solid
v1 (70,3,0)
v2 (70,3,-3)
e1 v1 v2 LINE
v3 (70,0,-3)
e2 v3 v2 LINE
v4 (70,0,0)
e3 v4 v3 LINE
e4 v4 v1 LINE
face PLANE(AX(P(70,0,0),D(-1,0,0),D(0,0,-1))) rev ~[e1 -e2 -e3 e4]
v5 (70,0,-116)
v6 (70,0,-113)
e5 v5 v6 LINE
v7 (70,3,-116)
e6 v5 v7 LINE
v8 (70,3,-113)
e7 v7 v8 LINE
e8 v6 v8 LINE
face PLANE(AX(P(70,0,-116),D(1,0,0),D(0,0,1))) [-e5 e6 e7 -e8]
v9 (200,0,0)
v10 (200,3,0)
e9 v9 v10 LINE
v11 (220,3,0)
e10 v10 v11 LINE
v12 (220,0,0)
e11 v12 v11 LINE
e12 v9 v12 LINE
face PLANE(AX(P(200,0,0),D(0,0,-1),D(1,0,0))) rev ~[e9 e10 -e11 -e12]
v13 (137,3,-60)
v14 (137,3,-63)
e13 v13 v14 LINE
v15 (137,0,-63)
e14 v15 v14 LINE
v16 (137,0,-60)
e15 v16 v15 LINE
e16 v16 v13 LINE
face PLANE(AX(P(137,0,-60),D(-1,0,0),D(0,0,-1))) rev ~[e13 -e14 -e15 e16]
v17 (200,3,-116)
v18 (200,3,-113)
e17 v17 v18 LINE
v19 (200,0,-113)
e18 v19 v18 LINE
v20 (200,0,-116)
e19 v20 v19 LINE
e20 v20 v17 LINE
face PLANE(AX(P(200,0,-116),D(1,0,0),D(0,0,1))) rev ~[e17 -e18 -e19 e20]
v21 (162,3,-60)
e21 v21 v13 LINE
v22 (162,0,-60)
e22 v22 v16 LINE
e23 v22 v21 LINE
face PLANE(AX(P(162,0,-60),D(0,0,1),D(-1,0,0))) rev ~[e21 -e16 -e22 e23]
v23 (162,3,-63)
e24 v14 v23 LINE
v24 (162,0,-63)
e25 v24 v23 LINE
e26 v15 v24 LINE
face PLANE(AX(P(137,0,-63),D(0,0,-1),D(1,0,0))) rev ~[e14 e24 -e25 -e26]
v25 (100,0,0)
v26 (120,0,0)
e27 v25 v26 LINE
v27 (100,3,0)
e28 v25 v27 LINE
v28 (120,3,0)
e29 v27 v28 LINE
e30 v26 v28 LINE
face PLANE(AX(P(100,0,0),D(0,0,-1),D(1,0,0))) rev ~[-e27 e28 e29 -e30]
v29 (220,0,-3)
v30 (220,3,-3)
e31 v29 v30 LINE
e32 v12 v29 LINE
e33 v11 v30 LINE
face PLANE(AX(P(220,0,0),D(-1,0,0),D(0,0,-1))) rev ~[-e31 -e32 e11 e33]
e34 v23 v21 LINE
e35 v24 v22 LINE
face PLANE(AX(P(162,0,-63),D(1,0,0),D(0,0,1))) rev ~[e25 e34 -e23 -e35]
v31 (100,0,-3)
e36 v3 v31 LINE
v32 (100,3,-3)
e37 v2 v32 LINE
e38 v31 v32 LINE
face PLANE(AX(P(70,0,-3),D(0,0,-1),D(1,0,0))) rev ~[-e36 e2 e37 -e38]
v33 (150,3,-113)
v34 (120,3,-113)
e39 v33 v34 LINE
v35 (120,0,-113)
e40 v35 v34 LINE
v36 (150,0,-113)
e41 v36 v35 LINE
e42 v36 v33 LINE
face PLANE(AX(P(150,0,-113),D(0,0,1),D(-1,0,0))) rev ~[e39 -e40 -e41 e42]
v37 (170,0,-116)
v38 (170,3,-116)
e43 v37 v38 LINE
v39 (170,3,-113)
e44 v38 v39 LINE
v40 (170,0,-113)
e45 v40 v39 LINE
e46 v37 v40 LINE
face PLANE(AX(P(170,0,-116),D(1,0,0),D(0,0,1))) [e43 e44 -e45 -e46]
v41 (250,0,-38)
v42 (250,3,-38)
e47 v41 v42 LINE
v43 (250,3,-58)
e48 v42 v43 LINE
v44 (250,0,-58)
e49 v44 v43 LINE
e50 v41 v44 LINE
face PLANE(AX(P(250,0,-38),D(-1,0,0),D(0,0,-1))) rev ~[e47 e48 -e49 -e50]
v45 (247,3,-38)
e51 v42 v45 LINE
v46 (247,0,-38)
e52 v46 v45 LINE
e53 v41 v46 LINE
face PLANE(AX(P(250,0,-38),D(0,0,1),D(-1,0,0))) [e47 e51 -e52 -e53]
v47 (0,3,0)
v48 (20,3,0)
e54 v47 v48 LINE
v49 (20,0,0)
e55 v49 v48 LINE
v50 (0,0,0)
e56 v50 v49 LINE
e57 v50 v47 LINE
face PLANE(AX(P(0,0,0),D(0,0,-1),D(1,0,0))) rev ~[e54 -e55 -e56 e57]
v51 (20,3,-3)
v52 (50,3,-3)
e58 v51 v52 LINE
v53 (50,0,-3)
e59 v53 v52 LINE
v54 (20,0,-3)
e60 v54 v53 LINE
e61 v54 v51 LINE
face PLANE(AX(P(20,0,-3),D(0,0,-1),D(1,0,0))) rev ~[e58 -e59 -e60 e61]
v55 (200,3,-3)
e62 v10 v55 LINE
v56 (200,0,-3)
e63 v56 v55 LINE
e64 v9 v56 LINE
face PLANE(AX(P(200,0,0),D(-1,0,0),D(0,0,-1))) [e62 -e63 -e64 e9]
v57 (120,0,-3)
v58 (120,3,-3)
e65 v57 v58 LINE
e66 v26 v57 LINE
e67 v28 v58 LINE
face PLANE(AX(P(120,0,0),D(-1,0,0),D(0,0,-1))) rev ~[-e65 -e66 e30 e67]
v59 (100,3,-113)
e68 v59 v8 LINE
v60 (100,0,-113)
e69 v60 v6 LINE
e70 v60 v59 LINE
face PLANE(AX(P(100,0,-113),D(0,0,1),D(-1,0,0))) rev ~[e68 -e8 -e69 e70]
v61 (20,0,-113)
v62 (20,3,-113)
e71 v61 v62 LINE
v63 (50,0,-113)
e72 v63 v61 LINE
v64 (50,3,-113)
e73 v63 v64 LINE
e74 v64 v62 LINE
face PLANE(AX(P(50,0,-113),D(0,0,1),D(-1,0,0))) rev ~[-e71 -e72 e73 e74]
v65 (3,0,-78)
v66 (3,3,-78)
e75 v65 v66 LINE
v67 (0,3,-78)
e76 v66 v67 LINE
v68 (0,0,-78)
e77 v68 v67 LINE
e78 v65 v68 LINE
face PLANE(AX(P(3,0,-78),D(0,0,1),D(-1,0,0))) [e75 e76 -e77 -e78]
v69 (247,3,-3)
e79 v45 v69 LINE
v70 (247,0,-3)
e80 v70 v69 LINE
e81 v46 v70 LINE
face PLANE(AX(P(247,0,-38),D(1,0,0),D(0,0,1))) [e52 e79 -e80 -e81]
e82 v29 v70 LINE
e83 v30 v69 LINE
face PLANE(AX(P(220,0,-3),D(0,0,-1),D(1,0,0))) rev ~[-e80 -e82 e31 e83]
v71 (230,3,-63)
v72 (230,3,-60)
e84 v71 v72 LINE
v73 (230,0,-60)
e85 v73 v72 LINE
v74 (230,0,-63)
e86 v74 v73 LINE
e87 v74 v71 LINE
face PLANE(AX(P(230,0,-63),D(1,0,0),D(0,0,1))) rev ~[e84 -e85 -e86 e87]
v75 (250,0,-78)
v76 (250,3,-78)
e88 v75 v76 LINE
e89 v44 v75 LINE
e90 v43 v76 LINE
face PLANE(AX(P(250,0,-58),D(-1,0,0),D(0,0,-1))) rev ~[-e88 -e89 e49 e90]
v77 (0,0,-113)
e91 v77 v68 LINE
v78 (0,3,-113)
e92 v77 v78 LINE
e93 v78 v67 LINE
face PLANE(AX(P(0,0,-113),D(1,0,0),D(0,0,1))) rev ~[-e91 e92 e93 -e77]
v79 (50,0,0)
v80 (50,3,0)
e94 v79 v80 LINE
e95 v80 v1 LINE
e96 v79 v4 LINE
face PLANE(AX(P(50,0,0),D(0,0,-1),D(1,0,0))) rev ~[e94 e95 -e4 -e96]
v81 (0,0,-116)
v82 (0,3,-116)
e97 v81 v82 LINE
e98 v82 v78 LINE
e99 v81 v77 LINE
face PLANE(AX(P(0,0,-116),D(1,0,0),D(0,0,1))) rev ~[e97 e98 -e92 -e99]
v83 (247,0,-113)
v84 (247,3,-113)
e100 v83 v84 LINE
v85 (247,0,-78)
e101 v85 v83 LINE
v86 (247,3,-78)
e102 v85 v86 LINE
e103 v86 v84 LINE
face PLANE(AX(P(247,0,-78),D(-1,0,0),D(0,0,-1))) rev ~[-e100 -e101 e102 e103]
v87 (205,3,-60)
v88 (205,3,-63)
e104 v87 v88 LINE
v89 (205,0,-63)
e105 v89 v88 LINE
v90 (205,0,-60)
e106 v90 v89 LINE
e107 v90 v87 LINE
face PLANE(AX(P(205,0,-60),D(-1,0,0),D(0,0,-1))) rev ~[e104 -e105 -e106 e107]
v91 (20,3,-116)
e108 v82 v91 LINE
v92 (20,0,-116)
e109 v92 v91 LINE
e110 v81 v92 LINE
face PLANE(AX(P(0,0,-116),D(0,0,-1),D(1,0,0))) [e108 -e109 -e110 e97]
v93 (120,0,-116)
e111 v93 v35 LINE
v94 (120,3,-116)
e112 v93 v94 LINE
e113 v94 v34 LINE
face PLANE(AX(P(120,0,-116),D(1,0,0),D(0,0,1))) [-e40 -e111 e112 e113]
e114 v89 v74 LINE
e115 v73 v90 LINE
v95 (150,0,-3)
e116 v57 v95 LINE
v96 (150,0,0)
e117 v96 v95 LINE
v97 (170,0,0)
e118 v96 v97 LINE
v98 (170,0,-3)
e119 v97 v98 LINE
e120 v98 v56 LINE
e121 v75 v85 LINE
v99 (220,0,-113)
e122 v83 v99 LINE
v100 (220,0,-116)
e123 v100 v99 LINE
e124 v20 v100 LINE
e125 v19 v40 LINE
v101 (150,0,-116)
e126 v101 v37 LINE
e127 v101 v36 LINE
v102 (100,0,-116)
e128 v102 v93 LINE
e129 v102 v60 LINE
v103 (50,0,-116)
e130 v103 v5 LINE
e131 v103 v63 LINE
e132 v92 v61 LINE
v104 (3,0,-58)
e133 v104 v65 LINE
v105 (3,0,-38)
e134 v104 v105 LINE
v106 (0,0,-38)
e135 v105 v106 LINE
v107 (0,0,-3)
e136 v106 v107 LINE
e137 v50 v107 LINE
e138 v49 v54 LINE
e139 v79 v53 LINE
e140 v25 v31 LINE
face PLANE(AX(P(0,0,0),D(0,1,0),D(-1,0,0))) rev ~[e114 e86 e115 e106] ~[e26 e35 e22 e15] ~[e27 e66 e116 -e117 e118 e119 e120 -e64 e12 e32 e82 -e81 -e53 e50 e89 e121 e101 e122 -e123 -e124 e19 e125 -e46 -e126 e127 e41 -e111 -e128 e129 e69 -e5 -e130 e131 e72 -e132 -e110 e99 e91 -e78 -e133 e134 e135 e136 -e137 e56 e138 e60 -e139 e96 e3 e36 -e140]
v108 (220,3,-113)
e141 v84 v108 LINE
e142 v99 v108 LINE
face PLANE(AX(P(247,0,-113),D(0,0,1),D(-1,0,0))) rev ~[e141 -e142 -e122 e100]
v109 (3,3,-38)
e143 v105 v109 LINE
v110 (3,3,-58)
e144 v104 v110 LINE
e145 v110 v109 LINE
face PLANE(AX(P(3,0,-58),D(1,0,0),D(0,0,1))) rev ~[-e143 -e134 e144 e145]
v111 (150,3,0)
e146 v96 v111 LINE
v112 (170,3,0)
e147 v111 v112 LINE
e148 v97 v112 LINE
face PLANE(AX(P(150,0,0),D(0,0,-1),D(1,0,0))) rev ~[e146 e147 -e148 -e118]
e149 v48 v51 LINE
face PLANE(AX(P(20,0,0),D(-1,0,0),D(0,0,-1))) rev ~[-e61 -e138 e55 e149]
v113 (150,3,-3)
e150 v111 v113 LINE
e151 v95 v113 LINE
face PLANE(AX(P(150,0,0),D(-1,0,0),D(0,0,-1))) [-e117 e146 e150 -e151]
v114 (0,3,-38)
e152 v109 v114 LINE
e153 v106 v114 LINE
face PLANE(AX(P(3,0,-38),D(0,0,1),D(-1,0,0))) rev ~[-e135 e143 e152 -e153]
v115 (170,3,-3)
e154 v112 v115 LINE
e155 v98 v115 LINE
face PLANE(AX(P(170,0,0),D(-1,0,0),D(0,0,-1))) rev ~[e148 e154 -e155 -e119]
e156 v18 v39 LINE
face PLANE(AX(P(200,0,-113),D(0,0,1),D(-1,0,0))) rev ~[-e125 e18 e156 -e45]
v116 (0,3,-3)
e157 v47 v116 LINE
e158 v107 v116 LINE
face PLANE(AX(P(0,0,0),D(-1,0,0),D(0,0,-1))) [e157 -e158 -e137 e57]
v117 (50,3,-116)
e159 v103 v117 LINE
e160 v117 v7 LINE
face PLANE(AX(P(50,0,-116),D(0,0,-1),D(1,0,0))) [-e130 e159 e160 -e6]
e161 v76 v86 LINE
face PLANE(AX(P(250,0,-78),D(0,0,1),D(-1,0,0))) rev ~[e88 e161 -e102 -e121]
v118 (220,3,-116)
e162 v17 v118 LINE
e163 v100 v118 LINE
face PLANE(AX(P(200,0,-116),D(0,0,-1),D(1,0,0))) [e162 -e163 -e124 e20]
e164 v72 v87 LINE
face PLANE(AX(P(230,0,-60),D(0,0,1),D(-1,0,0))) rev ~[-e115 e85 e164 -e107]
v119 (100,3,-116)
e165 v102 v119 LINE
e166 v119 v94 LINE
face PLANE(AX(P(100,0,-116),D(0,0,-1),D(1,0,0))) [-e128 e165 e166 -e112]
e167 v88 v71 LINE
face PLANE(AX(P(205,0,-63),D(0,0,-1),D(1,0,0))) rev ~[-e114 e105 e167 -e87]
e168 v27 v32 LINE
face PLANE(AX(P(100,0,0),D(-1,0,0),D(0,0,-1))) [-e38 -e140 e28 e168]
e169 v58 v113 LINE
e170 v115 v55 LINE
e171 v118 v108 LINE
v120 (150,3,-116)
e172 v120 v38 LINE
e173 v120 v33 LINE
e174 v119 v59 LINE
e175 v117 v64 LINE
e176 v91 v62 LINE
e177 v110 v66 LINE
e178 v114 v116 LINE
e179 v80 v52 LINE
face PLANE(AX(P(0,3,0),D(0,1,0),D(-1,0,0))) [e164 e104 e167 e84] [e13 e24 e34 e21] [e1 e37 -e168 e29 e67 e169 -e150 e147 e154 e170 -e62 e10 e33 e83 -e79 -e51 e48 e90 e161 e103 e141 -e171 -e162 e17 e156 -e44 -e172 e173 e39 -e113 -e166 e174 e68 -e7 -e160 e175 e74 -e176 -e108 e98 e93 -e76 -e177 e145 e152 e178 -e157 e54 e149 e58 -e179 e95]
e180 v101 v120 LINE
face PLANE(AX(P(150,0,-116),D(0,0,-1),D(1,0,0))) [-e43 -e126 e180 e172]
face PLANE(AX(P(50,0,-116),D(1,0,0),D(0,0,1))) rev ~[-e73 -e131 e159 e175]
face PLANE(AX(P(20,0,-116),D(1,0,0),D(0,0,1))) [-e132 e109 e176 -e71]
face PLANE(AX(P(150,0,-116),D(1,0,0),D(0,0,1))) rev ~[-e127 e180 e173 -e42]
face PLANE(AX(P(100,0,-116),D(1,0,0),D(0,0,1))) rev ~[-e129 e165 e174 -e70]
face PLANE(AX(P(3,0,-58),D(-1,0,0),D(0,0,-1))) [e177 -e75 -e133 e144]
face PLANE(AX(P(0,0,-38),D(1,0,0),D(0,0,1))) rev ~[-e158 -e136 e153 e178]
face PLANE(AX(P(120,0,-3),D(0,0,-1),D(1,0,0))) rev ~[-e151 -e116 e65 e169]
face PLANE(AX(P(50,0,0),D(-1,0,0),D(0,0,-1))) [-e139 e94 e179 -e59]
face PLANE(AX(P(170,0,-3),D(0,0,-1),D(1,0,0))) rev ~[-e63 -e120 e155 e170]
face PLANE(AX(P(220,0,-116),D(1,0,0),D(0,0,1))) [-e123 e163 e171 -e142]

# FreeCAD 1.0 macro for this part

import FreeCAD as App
import Part
import Sketcher

doc = App.newDocument("Part")
params = doc.addObject("Spreadsheet::Sheet", "Params")
for row, (alias, value) in enumerate([
    ("sketch1_width", "20 mm"),
    ("sketch1_width2", "30 mm"),
    ("sketch1_width3", "3 mm"),
    ("sketch1_width4", "25 mm"),
    ("sketch1_height", "40 mm"),
    ("pad1_length", "3 mm"),
], start=1):
    params.set(f"A{row}", alias)
    params.set(f"B{row}", "=" + value)
    params.setAlias(f"B{row}", alias)

body = doc.addObject("PartDesign::Body", "Body")

# Sketch on XZ plane
sketch1 = body.newObject("Sketcher::SketchObject", "Sketch")
sketch1.AttachmentSupport = (doc.getObject("XZ_Plane"), [""])
sketch1.MapMode = "FlatFace"
sketch1.addGeometry([
    Part.LineSegment(App.Vector(0, -38, 0), App.Vector(0, 0, 0)),  # 0
    Part.LineSegment(App.Vector(0, 0, 0), App.Vector(20, 0, 0)),  # 1
    Part.LineSegment(App.Vector(20, 0, 0), App.Vector(20, -3, 0)),  # 2
    Part.LineSegment(App.Vector(20, -3, 0), App.Vector(50, -3, 0)),  # 3
    Part.LineSegment(App.Vector(50, -3, 0), App.Vector(50, 0, 0)),  # 4
    Part.LineSegment(App.Vector(50, 0, 0), App.Vector(70, 0, 0)),  # 5
    Part.LineSegment(App.Vector(70, 0, 0), App.Vector(70, -3, 0)),  # 6
    Part.LineSegment(App.Vector(70, -3, 0), App.Vector(100, -3, 0)),  # 7
    Part.LineSegment(App.Vector(100, -3, 0), App.Vector(100, 0, 0)),  # 8
    Part.LineSegment(App.Vector(100, 0, 0), App.Vector(120, 0, 0)),  # 9
    Part.LineSegment(App.Vector(120, 0, 0), App.Vector(120, -3, 0)),  # 10
    Part.LineSegment(App.Vector(120, -3, 0), App.Vector(150, -3, 0)),  # 11
    Part.LineSegment(App.Vector(150, -3, 0), App.Vector(150, 0, 0)),  # 12
    Part.LineSegment(App.Vector(150, 0, 0), App.Vector(170, 0, 0)),  # 13
    Part.LineSegment(App.Vector(170, 0, 0), App.Vector(170, -3, 0)),  # 14
    Part.LineSegment(App.Vector(170, -3, 0), App.Vector(200, -3, 0)),  # 15
    Part.LineSegment(App.Vector(200, -3, 0), App.Vector(200, 0, 0)),  # 16
    Part.LineSegment(App.Vector(200, 0, 0), App.Vector(220, 0, 0)),  # 17
    Part.LineSegment(App.Vector(220, 0, 0), App.Vector(220, -3, 0)),  # 18
    Part.LineSegment(App.Vector(220, -3, 0), App.Vector(247, -3, 0)),  # 19
    Part.LineSegment(App.Vector(247, -3, 0), App.Vector(247, -38, 0)),  # 20
    Part.LineSegment(App.Vector(247, -38, 0), App.Vector(250, -38, 0)),  # 21
    Part.LineSegment(App.Vector(250, -38, 0), App.Vector(250, -78, 0)),  # 22
    Part.LineSegment(App.Vector(250, -78, 0), App.Vector(247, -78, 0)),  # 23
    Part.LineSegment(App.Vector(247, -78, 0), App.Vector(247, -113, 0)),  # 24
    Part.LineSegment(App.Vector(247, -113, 0), App.Vector(220, -113, 0)),  # 25
    Part.LineSegment(App.Vector(220, -113, 0), App.Vector(220, -116, 0)),  # 26
    Part.LineSegment(App.Vector(220, -116, 0), App.Vector(200, -116, 0)),  # 27
    Part.LineSegment(App.Vector(200, -116, 0), App.Vector(200, -113, 0)),  # 28
    Part.LineSegment(App.Vector(200, -113, 0), App.Vector(170, -113, 0)),  # 29
    Part.LineSegment(App.Vector(170, -113, 0), App.Vector(170, -116, 0)),  # 30
    Part.LineSegment(App.Vector(170, -116, 0), App.Vector(150, -116, 0)),  # 31
    Part.LineSegment(App.Vector(150, -116, 0), App.Vector(150, -113, 0)),  # 32
    Part.LineSegment(App.Vector(150, -113, 0), App.Vector(120, -113, 0)),  # 33
    Part.LineSegment(App.Vector(120, -113, 0), App.Vector(120, -116, 0)),  # 34
    Part.LineSegment(App.Vector(120, -116, 0), App.Vector(100, -116, 0)),  # 35
    Part.LineSegment(App.Vector(100, -116, 0), App.Vector(100, -113, 0)),  # 36
    Part.LineSegment(App.Vector(100, -113, 0), App.Vector(70, -113, 0)),  # 37
    Part.LineSegment(App.Vector(70, -113, 0), App.Vector(70, -116, 0)),  # 38
    Part.LineSegment(App.Vector(70, -116, 0), App.Vector(50, -116, 0)),  # 39
    Part.LineSegment(App.Vector(50, -116, 0), App.Vector(50, -113, 0)),  # 40
    Part.LineSegment(App.Vector(50, -113, 0), App.Vector(20, -113, 0)),  # 41
    Part.LineSegment(App.Vector(20, -113, 0), App.Vector(20, -116, 0)),  # 42
    Part.LineSegment(App.Vector(20, -116, 0), App.Vector(0, -116, 0)),  # 43
    Part.LineSegment(App.Vector(0, -116, 0), App.Vector(0, -78, 0)),  # 44
    Part.LineSegment(App.Vector(0, -78, 0), App.Vector(3, -78, 0)),  # 45
    Part.LineSegment(App.Vector(3, -78, 0), App.Vector(3, -38, 0)),  # 46
    Part.LineSegment(App.Vector(3, -38, 0), App.Vector(0, -38, 0)),  # 47
    Part.LineSegment(App.Vector(230, -63, 0), App.Vector(230, -60, 0)),  # 48
    Part.LineSegment(App.Vector(230, -60, 0), App.Vector(205, -60, 0)),  # 49
    Part.LineSegment(App.Vector(205, -60, 0), App.Vector(205, -63, 0)),  # 50
    Part.LineSegment(App.Vector(205, -63, 0), App.Vector(230, -63, 0)),  # 51
    Part.LineSegment(App.Vector(162, -63, 0), App.Vector(162, -60, 0)),  # 52
    Part.LineSegment(App.Vector(162, -60, 0), App.Vector(137, -60, 0)),  # 53
    Part.LineSegment(App.Vector(137, -60, 0), App.Vector(137, -63, 0)),  # 54
    Part.LineSegment(App.Vector(137, -63, 0), App.Vector(162, -63, 0)),  # 55
], False)
sketch1.addConstraint([
    Sketcher.Constraint("Coincident", 0, 2, 1, 1),
    Sketcher.Constraint("Coincident", 1, 2, 2, 1),
    Sketcher.Constraint("Coincident", 2, 2, 3, 1),
    Sketcher.Constraint("Coincident", 3, 2, 4, 1),
    Sketcher.Constraint("Coincident", 4, 2, 5, 1),
    Sketcher.Constraint("Coincident", 5, 2, 6, 1),
    Sketcher.Constraint("Coincident", 6, 2, 7, 1),
    Sketcher.Constraint("Coincident", 7, 2, 8, 1),
    Sketcher.Constraint("Coincident", 8, 2, 9, 1),
    Sketcher.Constraint("Coincident", 9, 2, 10, 1),
    Sketcher.Constraint("Coincident", 10, 2, 11, 1),
    Sketcher.Constraint("Coincident", 11, 2, 12, 1),
    Sketcher.Constraint("Coincident", 12, 2, 13, 1),
    Sketcher.Constraint("Coincident", 13, 2, 14, 1),
    Sketcher.Constraint("Coincident", 14, 2, 15, 1),
    Sketcher.Constraint("Coincident", 15, 2, 16, 1),
    Sketcher.Constraint("Coincident", 16, 2, 17, 1),
    Sketcher.Constraint("Coincident", 17, 2, 18, 1),
    Sketcher.Constraint("Coincident", 18, 2, 19, 1),
    Sketcher.Constraint("Coincident", 19, 2, 20, 1),
    Sketcher.Constraint("Coincident", 20, 2, 21, 1),
    Sketcher.Constraint("Coincident", 21, 2, 22, 1),
    Sketcher.Constraint("Coincident", 22, 2, 23, 1),
    Sketcher.Constraint("Coincident", 23, 2, 24, 1),
    Sketcher.Constraint("Coincident", 24, 2, 25, 1),
    Sketcher.Constraint("Coincident", 25, 2, 26, 1),
    Sketcher.Constraint("Coincident", 26, 2, 27, 1),
    Sketcher.Constraint("Coincident", 27, 2, 28, 1),
    Sketcher.Constraint("Coincident", 28, 2, 29, 1),
    Sketcher.Constraint("Coincident", 29, 2, 30, 1),
    Sketcher.Constraint("Coincident", 30, 2, 31, 1),
    Sketcher.Constraint("Coincident", 31, 2, 32, 1),
    Sketcher.Constraint("Coincident", 32, 2, 33, 1),
    Sketcher.Constraint("Coincident", 33, 2, 34, 1),
    Sketcher.Constraint("Coincident", 34, 2, 35, 1),
    Sketcher.Constraint("Coincident", 35, 2, 36, 1),
    Sketcher.Constraint("Coincident", 36, 2, 37, 1),
    Sketcher.Constraint("Coincident", 37, 2, 38, 1),
    Sketcher.Constraint("Coincident", 38, 2, 39, 1),
    Sketcher.Constraint("Coincident", 39, 2, 40, 1),
    Sketcher.Constraint("Coincident", 40, 2, 41, 1),
    Sketcher.Constraint("Coincident", 41, 2, 42, 1),
    Sketcher.Constraint("Coincident", 42, 2, 43, 1),
    Sketcher.Constraint("Coincident", 43, 2, 44, 1),
    Sketcher.Constraint("Coincident", 44, 2, 45, 1),
    Sketcher.Constraint("Coincident", 45, 2, 46, 1),
    Sketcher.Constraint("Coincident", 46, 2, 47, 1),
    Sketcher.Constraint("Coincident", 47, 2, 0, 1),
    Sketcher.Constraint("Coincident", 48, 2, 49, 1),
    Sketcher.Constraint("Coincident", 49, 2, 50, 1),
    Sketcher.Constraint("Coincident", 50, 2, 51, 1),
    Sketcher.Constraint("Coincident", 51, 2, 48, 1),
    Sketcher.Constraint("Coincident", 52, 2, 53, 1),
    Sketcher.Constraint("Coincident", 53, 2, 54, 1),
    Sketcher.Constraint("Coincident", 54, 2, 55, 1),
    Sketcher.Constraint("Coincident", 55, 2, 52, 1),
    Sketcher.Constraint("Vertical", 0),
    Sketcher.Constraint("Horizontal", 1),
    Sketcher.Constraint("Vertical", 2),
    Sketcher.Constraint("Horizontal", 3),
    Sketcher.Constraint("Vertical", 4),
    Sketcher.Constraint("Horizontal", 5),
    Sketcher.Constraint("Vertical", 6),
    Sketcher.Constraint("Horizontal", 7),
    Sketcher.Constraint("Vertical", 8),
    Sketcher.Constraint("Horizontal", 9),
    Sketcher.Constraint("Vertical", 10),
    Sketcher.Constraint("Horizontal", 11),
    Sketcher.Constraint("Vertical", 12),
    Sketcher.Constraint("Horizontal", 13),
    Sketcher.Constraint("Vertical", 14),
    Sketcher.Constraint("Horizontal", 15),
    Sketcher.Constraint("Vertical", 16),
    Sketcher.Constraint("Horizontal", 17),
    Sketcher.Constraint("Vertical", 18),
    Sketcher.Constraint("Horizontal", 19),
    Sketcher.Constraint("Vertical", 20),
    Sketcher.Constraint("Horizontal", 21),
    Sketcher.Constraint("Vertical", 22),
    Sketcher.Constraint("Horizontal", 23),
    Sketcher.Constraint("Vertical", 24),
    Sketcher.Constraint("Horizontal", 25),
    Sketcher.Constraint("Vertical", 26),
    Sketcher.Constraint("Horizontal", 27),
    Sketcher.Constraint("Vertical", 28),
    Sketcher.Constraint("Horizontal", 29),
    Sketcher.Constraint("Vertical", 30),
    Sketcher.Constraint("Horizontal", 31),
    Sketcher.Constraint("Vertical", 32),
    Sketcher.Constraint("Horizontal", 33),
    Sketcher.Constraint("Vertical", 34),
    Sketcher.Constraint("Horizontal", 35),
    Sketcher.Constraint("Vertical", 36),
    Sketcher.Constraint("Horizontal", 37),
    Sketcher.Constraint("Vertical", 38),
    Sketcher.Constraint("Horizontal", 39),
    Sketcher.Constraint("Vertical", 40),
    Sketcher.Constraint("Horizontal", 41),
    Sketcher.Constraint("Vertical", 42),
    Sketcher.Constraint("Horizontal", 43),
    Sketcher.Constraint("Vertical", 44),
    Sketcher.Constraint("Horizontal", 45),
    Sketcher.Constraint("Vertical", 46),
    Sketcher.Constraint("Horizontal", 47),
    Sketcher.Constraint("Vertical", 48),
    Sketcher.Constraint("Horizontal", 49),
    Sketcher.Constraint("Vertical", 50),
    Sketcher.Constraint("Horizontal", 51),
    Sketcher.Constraint("Vertical", 52),
    Sketcher.Constraint("Horizontal", 53),
    Sketcher.Constraint("Vertical", 54),
    Sketcher.Constraint("Horizontal", 55),
    Sketcher.Constraint("Coincident", 0, 2, -1, 1),
    Sketcher.Constraint("PointOnObject", 4, 2, -1),
    Sketcher.Constraint("PointOnObject", 8, 2, -1),
    Sketcher.Constraint("PointOnObject", 12, 2, -1),
    Sketcher.Constraint("PointOnObject", 16, 2, -1),
    Sketcher.Constraint("PointOnObject", 43, 2, -2),
    Sketcher.Constraint("Horizontal", 3, 2, 6, 2),
    Sketcher.Constraint("Horizontal", 7, 2, 10, 2),
    Sketcher.Constraint("Horizontal", 11, 2, 14, 2),
    Sketcher.Constraint("Horizontal", 15, 2, 18, 2),
    Sketcher.Constraint("Horizontal", 25, 2, 28, 2),
    Sketcher.Constraint("Horizontal", 27, 2, 30, 2),
    Sketcher.Constraint("Horizontal", 29, 2, 32, 2),
    Sketcher.Constraint("Horizontal", 31, 2, 34, 2),
    Sketcher.Constraint("Horizontal", 33, 2, 36, 2),
    Sketcher.Constraint("Horizontal", 35, 2, 38, 2),
    Sketcher.Constraint("Horizontal", 37, 2, 40, 2),
    Sketcher.Constraint("Horizontal", 39, 2, 42, 2),
    Sketcher.Constraint("Horizontal", 23, 2, 44, 2),
    Sketcher.Constraint("Horizontal", 21, 2, 46, 2),
    Sketcher.Constraint("Horizontal", 49, 2, 52, 2),
    Sketcher.Constraint("Horizontal", 51, 2, 54, 2),
    Sketcher.Constraint("Vertical", 20, 2, 23, 2),
    Sketcher.Constraint("Vertical", 18, 2, 25, 2),
    Sketcher.Constraint("Vertical", 16, 2, 27, 2),
    Sketcher.Constraint("Vertical", 14, 2, 29, 2),
    Sketcher.Constraint("Vertical", 12, 2, 31, 2),
    Sketcher.Constraint("Vertical", 10, 2, 33, 2),
    Sketcher.Constraint("Vertical", 8, 2, 35, 2),
    Sketcher.Constraint("Vertical", 6, 2, 37, 2),
    Sketcher.Constraint("Vertical", 4, 2, 39, 2),
    Sketcher.Constraint("Vertical", 2, 2, 41, 2),
    Sketcher.Constraint("Equal", 1, 5),
    Sketcher.Constraint("Equal", 3, 7),
    Sketcher.Constraint("Equal", 5, 9),
    Sketcher.Constraint("Equal", 7, 11),
    Sketcher.Constraint("Equal", 9, 13),
    Sketcher.Constraint("Equal", 11, 15),
    Sketcher.Constraint("Equal", 13, 17),
    Sketcher.Constraint("Equal", 23, 45),
    Sketcher.Constraint("Equal", 51, 53),
    Sketcher.Constraint("Equal", 47, 2),
    Sketcher.Constraint("Equal", 20, 24),
    Sketcher.Constraint("Equal", 18, 26),
    Sketcher.Constraint("Equal", 42, 48),
    Sketcher.Constraint("DistanceX", 1, 1, 1, 2, 20.0),
    Sketcher.Constraint("DistanceX", 3, 1, 3, 2, 30.0),
    Sketcher.Constraint("DistanceX", 21, 1, 21, 2, 3.0),
    Sketcher.Constraint("DistanceX", 49, 2, 49, 1, 25.0),
    Sketcher.Constraint("DistanceY", 22, 2, 22, 1, 40.0),
    Sketcher.Constraint("DistanceX", -1, 1, 21, 2, 250.0),
    Sketcher.Constraint("DistanceY", 24, 2, 19, 2, 110.0),
    Sketcher.Constraint("DistanceX", 48, 2, 23, 2, 17.0),
    Sketcher.Constraint("DistanceY", 50, 2, 20, 2, 25.0),
    Sketcher.Constraint("DistanceX", 52, 2, 49, 2, 43.0),
])
sketch1.setExpression("Constraints[157]", "Params.sketch1_width")
sketch1.setExpression("Constraints[158]", "Params.sketch1_width2")
sketch1.setExpression("Constraints[159]", "Params.sketch1_width3")
sketch1.setExpression("Constraints[160]", "Params.sketch1_width4")
sketch1.setExpression("Constraints[161]", "Params.sketch1_height")
pad1 = body.newObject("PartDesign::Pad", "Pad")
pad1.Profile = sketch1
pad1.setExpression("Length", "Params.pad1_length")
pad1.Reversed = True

doc.recompute()
